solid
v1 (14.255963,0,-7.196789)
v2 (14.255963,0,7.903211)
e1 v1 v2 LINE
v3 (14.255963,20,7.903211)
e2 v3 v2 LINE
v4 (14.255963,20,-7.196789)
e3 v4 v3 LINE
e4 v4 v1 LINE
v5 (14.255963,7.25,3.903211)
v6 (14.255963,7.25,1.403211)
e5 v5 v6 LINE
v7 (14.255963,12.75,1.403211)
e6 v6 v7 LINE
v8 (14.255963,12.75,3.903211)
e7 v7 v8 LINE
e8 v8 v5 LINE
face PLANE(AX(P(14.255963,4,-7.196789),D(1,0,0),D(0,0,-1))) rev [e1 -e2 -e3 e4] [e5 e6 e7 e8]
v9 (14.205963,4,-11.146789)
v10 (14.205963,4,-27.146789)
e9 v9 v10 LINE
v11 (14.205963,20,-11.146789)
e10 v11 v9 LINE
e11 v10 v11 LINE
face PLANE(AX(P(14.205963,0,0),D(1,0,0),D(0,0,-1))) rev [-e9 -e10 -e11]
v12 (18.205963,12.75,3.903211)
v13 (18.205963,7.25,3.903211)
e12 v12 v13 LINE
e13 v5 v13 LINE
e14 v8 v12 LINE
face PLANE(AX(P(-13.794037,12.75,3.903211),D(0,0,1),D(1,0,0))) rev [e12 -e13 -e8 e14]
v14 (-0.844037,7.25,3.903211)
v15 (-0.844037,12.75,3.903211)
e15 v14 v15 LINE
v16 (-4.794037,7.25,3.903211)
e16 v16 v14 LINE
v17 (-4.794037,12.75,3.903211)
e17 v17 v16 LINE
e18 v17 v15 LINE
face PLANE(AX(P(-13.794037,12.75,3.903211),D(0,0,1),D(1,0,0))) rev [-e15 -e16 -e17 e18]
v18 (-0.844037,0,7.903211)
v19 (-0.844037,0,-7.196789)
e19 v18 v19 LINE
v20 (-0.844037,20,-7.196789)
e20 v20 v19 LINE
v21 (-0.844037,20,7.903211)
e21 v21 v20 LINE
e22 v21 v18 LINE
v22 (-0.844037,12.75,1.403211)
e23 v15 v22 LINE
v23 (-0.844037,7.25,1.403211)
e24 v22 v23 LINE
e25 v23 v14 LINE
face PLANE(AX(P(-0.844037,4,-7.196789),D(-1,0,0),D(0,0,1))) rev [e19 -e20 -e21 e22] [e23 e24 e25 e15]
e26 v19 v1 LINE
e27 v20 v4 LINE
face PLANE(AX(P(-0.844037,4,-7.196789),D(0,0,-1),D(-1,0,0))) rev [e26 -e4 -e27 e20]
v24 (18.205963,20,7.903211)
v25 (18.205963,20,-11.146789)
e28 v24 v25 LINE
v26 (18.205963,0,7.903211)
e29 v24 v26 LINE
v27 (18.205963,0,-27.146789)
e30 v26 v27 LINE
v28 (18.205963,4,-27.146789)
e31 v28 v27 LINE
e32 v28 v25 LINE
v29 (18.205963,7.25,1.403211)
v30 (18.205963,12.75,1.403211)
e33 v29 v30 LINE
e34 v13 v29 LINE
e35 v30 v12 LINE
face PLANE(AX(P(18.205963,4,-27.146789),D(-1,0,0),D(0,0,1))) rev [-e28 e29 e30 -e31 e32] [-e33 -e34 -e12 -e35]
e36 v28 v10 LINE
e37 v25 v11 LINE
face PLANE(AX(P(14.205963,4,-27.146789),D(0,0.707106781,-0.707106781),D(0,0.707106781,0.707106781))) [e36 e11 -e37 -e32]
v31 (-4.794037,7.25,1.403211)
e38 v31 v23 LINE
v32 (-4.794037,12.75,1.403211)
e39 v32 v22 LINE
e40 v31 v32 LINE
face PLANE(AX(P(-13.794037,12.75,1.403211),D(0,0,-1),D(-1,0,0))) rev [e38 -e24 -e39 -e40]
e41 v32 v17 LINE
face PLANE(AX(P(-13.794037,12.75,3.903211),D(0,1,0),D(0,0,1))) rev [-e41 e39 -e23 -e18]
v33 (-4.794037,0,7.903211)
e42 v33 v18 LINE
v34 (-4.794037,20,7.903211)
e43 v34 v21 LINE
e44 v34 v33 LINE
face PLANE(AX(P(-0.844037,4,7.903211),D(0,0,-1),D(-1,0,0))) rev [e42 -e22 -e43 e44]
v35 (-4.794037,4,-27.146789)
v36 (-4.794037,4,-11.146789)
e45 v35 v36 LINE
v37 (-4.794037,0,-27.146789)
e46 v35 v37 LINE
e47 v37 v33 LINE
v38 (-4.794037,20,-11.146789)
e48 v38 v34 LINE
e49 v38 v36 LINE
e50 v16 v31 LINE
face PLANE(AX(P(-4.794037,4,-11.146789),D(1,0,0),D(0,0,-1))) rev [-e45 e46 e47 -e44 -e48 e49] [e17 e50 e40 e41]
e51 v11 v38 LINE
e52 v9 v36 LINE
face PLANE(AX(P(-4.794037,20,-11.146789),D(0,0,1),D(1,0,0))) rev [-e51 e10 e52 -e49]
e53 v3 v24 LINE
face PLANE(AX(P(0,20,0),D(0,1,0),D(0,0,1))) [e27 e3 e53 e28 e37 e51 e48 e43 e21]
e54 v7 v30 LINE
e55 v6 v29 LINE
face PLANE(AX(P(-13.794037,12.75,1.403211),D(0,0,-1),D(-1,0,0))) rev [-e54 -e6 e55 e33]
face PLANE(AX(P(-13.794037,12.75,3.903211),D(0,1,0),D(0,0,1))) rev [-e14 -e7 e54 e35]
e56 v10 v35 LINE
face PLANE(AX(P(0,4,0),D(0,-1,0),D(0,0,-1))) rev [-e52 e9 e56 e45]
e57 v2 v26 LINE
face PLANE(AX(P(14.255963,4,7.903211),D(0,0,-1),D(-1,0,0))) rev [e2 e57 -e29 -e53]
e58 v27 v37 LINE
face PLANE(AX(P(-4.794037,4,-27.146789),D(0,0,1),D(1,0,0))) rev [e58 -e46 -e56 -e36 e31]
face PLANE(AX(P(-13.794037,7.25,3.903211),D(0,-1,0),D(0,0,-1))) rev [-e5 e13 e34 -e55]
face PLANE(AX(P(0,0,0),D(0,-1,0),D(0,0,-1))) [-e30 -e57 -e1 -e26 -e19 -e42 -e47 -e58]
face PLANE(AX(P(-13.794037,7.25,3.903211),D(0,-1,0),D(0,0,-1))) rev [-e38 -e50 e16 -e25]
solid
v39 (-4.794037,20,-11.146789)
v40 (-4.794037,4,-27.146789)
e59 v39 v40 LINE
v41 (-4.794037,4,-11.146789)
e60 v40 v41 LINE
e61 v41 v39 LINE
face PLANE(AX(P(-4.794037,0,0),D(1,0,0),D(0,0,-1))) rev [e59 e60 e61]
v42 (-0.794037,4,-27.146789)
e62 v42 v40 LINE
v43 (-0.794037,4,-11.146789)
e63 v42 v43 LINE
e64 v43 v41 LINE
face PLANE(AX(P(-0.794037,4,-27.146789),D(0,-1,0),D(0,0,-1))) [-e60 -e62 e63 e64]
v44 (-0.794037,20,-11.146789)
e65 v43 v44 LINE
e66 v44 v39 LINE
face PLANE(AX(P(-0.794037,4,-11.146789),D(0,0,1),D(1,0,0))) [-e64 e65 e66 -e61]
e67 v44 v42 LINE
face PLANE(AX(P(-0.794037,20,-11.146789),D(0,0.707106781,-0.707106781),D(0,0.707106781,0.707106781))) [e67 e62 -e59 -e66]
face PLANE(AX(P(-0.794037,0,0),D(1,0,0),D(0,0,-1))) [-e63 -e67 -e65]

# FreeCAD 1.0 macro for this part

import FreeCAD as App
import Part
import Sketcher

V = App.Vector
Q = App.Units.Quantity

doc = App.newDocument("Part")
params = doc.addObject("Spreadsheet::Sheet", "Params")
for row, (alias, value) in enumerate([
    ("sketch1_width", "23 mm"),
    ("sketch1_width2", "15.1 mm"),
    ("sketch1_height", "35.05 mm"),
    ("pad1_length", "4 mm"),
    ("sketch2_width", "23 mm"),
    ("sketch2_width2", "15.1 mm"),
    ("sketch2_height", "19.05 mm"),
    ("pad2_length", "16 mm"),
    ("sketch3_width", "16 mm"),
    ("pad3_length", "4 mm"),
    ("sketch4_width", "5.5 mm"),
    ("sketch4_height", "2.5 mm"),
    ("pocket1_length", "32 mm"),
    ("sketch5_width", "16 mm"),
    ("pad4_length", "4 mm"),
], start=1):
    params.set(f"A{row}", alias)
    params.set(f"B{row}", "=" + value)
    params.setAlias(f"B{row}", alias)

body = doc.addObject("PartDesign::Body", "Body")

sketch1 = body.newObject("Sketcher::SketchObject", "Sketch")
sketch1.AttachmentSupport = (doc.getObject("XZ_Plane"), [""])
sketch1.MapMode = "FlatFace"
sketch1.addGeometry([
    Part.LineSegment(V(-4.8, 7.9, 0), V(-0.8, 7.9, 0)),
    Part.LineSegment(V(-0.8, 7.9, 0), V(-0.8, -7.2, 0)),
    Part.LineSegment(V(-0.8, -7.2, 0), V(14.3, -7.2, 0)),
    Part.LineSegment(V(14.3, -7.2, 0), V(14.3, 7.9, 0)),
    Part.LineSegment(V(14.3, 7.9, 0), V(18.2, 7.9, 0)),
    Part.LineSegment(V(18.2, 7.9, 0), V(18.2, -27.1, 0)),
    Part.LineSegment(V(18.2, -27.1, 0), V(-4.8, -27.1, 0)),
    Part.LineSegment(V(-4.8, -27.1, 0), V(-4.8, 7.9, 0)),
], False)
sketch1.addConstraint([
    Sketcher.Constraint("Coincident", 0, 2, 1, 1),
    Sketcher.Constraint("Coincident", 1, 2, 2, 1),
    Sketcher.Constraint("Coincident", 2, 2, 3, 1),
    Sketcher.Constraint("Coincident", 3, 2, 4, 1),
    Sketcher.Constraint("Coincident", 4, 2, 5, 1),
    Sketcher.Constraint("Coincident", 5, 2, 6, 1),
    Sketcher.Constraint("Coincident", 6, 2, 7, 1),
    Sketcher.Constraint("Coincident", 7, 2, 0, 1),
    Sketcher.Constraint("Horizontal", 0),
    Sketcher.Constraint("Vertical", 1),
    Sketcher.Constraint("Horizontal", 2),
    Sketcher.Constraint("Vertical", 3),
    Sketcher.Constraint("Horizontal", 4),
    Sketcher.Constraint("Vertical", 5),
    Sketcher.Constraint("Horizontal", 6),
    Sketcher.Constraint("Vertical", 7),
    Sketcher.Constraint("Horizontal", 0, 2, 3, 2),
    Sketcher.Constraint("Equal", 0, 4),
    Sketcher.Constraint("Equal", 2, 1),
    Sketcher.Constraint("DistanceX", 6, 2, 6, 1, Q("23 mm")),
    Sketcher.Constraint("DistanceX", 2, 1, 2, 2, Q("15.1 mm")),
    Sketcher.Constraint("DistanceY", 5, 2, 5, 1, Q("35.05 mm")),
    Sketcher.Constraint("DistanceY", -1, 1, 0, 2, Q("7.903211 mm")),
    Sketcher.Constraint("DistanceX", 0, 2, -1, 1, Q("0.844037 mm")),
])
sketch1.setExpression("Constraints[19]", "Params.sketch1_width")
sketch1.setExpression("Constraints[20]", "Params.sketch1_width2")
sketch1.setExpression("Constraints[21]", "Params.sketch1_height")
pad1 = body.newObject("PartDesign::Pad", "Pad")
pad1.Profile = sketch1
pad1.setExpression("Length", "Params.pad1_length")
pad1.Reversed = True

sketch2 = body.newObject("Sketcher::SketchObject", "Sketch001")
sketch2.AttachmentSupport = (doc.getObject("XZ_Plane"), [""])
sketch2.MapMode = "FlatFace"
sketch2.AttachmentOffset = App.Placement(V(0, 0, -4), App.Rotation())
sketch2.addGeometry([
    Part.LineSegment(V(18.2, -11.1, 0), V(-4.8, -11.1, 0)),
    Part.LineSegment(V(-4.8, -11.1, 0), V(-4.8, 7.9, 0)),
    Part.LineSegment(V(-4.8, 7.9, 0), V(-0.8, 7.9, 0)),
    Part.LineSegment(V(-0.8, 7.9, 0), V(-0.8, -7.2, 0)),
    Part.LineSegment(V(-0.8, -7.2, 0), V(14.3, -7.2, 0)),
    Part.LineSegment(V(14.3, -7.2, 0), V(14.3, 7.9, 0)),
    Part.LineSegment(V(14.3, 7.9, 0), V(18.2, 7.9, 0)),
    Part.LineSegment(V(18.2, 7.9, 0), V(18.2, -11.1, 0)),
], False)
sketch2.addConstraint([
    Sketcher.Constraint("Coincident", 0, 2, 1, 1),
    Sketcher.Constraint("Coincident", 1, 2, 2, 1),
    Sketcher.Constraint("Coincident", 2, 2, 3, 1),
    Sketcher.Constraint("Coincident", 3, 2, 4, 1),
    Sketcher.Constraint("Coincident", 4, 2, 5, 1),
    Sketcher.Constraint("Coincident", 5, 2, 6, 1),
    Sketcher.Constraint("Coincident", 6, 2, 7, 1),
    Sketcher.Constraint("Coincident", 7, 2, 0, 1),
    Sketcher.Constraint("Horizontal", 0),
    Sketcher.Constraint("Vertical", 1),
    Sketcher.Constraint("Horizontal", 2),
    Sketcher.Constraint("Vertical", 3),
    Sketcher.Constraint("Horizontal", 4),
    Sketcher.Constraint("Vertical", 5),
    Sketcher.Constraint("Horizontal", 6),
    Sketcher.Constraint("Vertical", 7),
    Sketcher.Constraint("Horizontal", 2, 2, 5, 2),
    Sketcher.Constraint("Equal", 2, 6),
    Sketcher.Constraint("Equal", 4, 3),
    Sketcher.Constraint("DistanceX", 0, 2, 0, 1, Q("23 mm")),
    Sketcher.Constraint("DistanceX", 4, 1, 4, 2, Q("15.1 mm")),
    Sketcher.Constraint("DistanceY", 1, 1, 1, 2, Q("19.05 mm")),
    Sketcher.Constraint("DistanceY", 0, 2, -1, 1, Q("11.146789 mm")),
    Sketcher.Constraint("DistanceX", 0, 2, -1, 1, Q("4.794037 mm")),
])
sketch2.setExpression("Constraints[19]", "Params.sketch2_width")
sketch2.setExpression("Constraints[20]", "Params.sketch2_width2")
sketch2.setExpression("Constraints[21]", "Params.sketch2_height")
pad2 = body.newObject("PartDesign::Pad", "Pad001")
pad2.Profile = sketch2
pad2.setExpression("Length", "Params.pad2_length")
pad2.Reversed = True

sketch3 = body.newObject("Sketcher::SketchObject", "Sketch002")
sketch3.AttachmentSupport = (doc.getObject("YZ_Plane"), [""])
sketch3.MapMode = "FlatFace"
sketch3.AttachmentOffset = App.Placement(V(0, 0, 18.205963), App.Rotation())
sketch3.addGeometry([
    Part.LineSegment(V(20, -11, 0), V(4, -11, 0)),
    Part.LineSegment(V(4, -11, 0), V(4, -27, 0)),
    Part.LineSegment(V(4, -27, 0), V(20, -11, 0)),
], False)
sketch3.addConstraint([
    Sketcher.Constraint("Coincident", 0, 2, 1, 1),
    Sketcher.Constraint("Coincident", 1, 2, 2, 1),
    Sketcher.Constraint("Coincident", 2, 2, 0, 1),
    Sketcher.Constraint("Horizontal", 0),
    Sketcher.Constraint("Vertical", 1),
    Sketcher.Constraint("Equal", 0, 1),
    Sketcher.Constraint("DistanceX", 0, 2, 0, 1, Q("16 mm")),
    Sketcher.Constraint("DistanceX", -1, 1, 0, 2, Q("4 mm")),
    Sketcher.Constraint("DistanceY", 0, 2, -1, 1, Q("11.146789 mm")),
])
sketch3.setExpression("Constraints[6]", "Params.sketch3_width")
pad3 = body.newObject("PartDesign::Pad", "Pad002")
pad3.Profile = sketch3
pad3.setExpression("Length", "Params.pad3_length")
pad3.Reversed = True

sketch4 = body.newObject("Sketcher::SketchObject", "Sketch003")
sketch4.AttachmentSupport = (doc.getObject("YZ_Plane"), [""])
sketch4.MapMode = "FlatFace"
sketch4.AttachmentOffset = App.Placement(V(0, 0, 18.205963), App.Rotation())
sketch4.addGeometry([
    Part.LineSegment(V(12.8, 3.9, 0), V(7.2, 3.9, 0)),
    Part.LineSegment(V(7.2, 3.9, 0), V(7.2, 1.4, 0)),
    Part.LineSegment(V(7.2, 1.4, 0), V(12.8, 1.4, 0)),
    Part.LineSegment(V(12.8, 1.4, 0), V(12.8, 3.9, 0)),
], False)
sketch4.addConstraint([
    Sketcher.Constraint("Coincident", 0, 2, 1, 1),
    Sketcher.Constraint("Coincident", 1, 2, 2, 1),
    Sketcher.Constraint("Coincident", 2, 2, 3, 1),
    Sketcher.Constraint("Coincident", 3, 2, 0, 1),
    Sketcher.Constraint("Horizontal", 0),
    Sketcher.Constraint("Vertical", 1),
    Sketcher.Constraint("Horizontal", 2),
    Sketcher.Constraint("Vertical", 3),
    Sketcher.Constraint("DistanceX", 0, 2, 0, 1, Q("5.5 mm")),
    Sketcher.Constraint("DistanceY", 1, 2, 1, 1, Q("2.5 mm")),
    Sketcher.Constraint("DistanceX", -1, 1, 0, 2, Q("7.25 mm")),
    Sketcher.Constraint("DistanceY", -1, 1, 0, 2, Q("3.903211 mm")),
])
sketch4.setExpression("Constraints[8]", "Params.sketch4_width")
sketch4.setExpression("Constraints[9]", "Params.sketch4_height")
pocket1 = body.newObject("PartDesign::Pocket", "Pocket")
pocket1.Profile = sketch4
pocket1.setExpression("Length", "Params.pocket1_length")
body2 = doc.addObject("PartDesign::Body", "Body001")

sketch5 = body2.newObject("Sketcher::SketchObject", "Sketch004")
sketch5.AttachmentSupport = (doc.getObject("YZ_Plane001"), [""])
sketch5.MapMode = "FlatFace"
sketch5.AttachmentOffset = App.Placement(V(0, 0, -4.794037), App.Rotation())
sketch5.addGeometry([
    Part.LineSegment(V(20, -11, 0), V(4, -27, 0)),
    Part.LineSegment(V(4, -27, 0), V(4, -11, 0)),
    Part.LineSegment(V(4, -11, 0), V(20, -11, 0)),
], False)
sketch5.addConstraint([
    Sketcher.Constraint("Coincident", 0, 2, 1, 1),
    Sketcher.Constraint("Coincident", 1, 2, 2, 1),
    Sketcher.Constraint("Coincident", 2, 2, 0, 1),
    Sketcher.Constraint("Vertical", 1),
    Sketcher.Constraint("Horizontal", 2),
    Sketcher.Constraint("Equal", 2, 1),
    Sketcher.Constraint("DistanceX", 2, 1, 2, 2, Q("16 mm")),
    Sketcher.Constraint("DistanceX", -1, 1, 0, 2, Q("4 mm")),
    Sketcher.Constraint("DistanceY", 0, 2, -1, 1, Q("27.146789 mm")),
])
sketch5.setExpression("Constraints[6]", "Params.sketch5_width")
pad4 = body2.newObject("PartDesign::Pad", "Pad003")
pad4.Profile = sketch5
pad4.setExpression("Length", "Params.pad4_length")

doc.recompute()
